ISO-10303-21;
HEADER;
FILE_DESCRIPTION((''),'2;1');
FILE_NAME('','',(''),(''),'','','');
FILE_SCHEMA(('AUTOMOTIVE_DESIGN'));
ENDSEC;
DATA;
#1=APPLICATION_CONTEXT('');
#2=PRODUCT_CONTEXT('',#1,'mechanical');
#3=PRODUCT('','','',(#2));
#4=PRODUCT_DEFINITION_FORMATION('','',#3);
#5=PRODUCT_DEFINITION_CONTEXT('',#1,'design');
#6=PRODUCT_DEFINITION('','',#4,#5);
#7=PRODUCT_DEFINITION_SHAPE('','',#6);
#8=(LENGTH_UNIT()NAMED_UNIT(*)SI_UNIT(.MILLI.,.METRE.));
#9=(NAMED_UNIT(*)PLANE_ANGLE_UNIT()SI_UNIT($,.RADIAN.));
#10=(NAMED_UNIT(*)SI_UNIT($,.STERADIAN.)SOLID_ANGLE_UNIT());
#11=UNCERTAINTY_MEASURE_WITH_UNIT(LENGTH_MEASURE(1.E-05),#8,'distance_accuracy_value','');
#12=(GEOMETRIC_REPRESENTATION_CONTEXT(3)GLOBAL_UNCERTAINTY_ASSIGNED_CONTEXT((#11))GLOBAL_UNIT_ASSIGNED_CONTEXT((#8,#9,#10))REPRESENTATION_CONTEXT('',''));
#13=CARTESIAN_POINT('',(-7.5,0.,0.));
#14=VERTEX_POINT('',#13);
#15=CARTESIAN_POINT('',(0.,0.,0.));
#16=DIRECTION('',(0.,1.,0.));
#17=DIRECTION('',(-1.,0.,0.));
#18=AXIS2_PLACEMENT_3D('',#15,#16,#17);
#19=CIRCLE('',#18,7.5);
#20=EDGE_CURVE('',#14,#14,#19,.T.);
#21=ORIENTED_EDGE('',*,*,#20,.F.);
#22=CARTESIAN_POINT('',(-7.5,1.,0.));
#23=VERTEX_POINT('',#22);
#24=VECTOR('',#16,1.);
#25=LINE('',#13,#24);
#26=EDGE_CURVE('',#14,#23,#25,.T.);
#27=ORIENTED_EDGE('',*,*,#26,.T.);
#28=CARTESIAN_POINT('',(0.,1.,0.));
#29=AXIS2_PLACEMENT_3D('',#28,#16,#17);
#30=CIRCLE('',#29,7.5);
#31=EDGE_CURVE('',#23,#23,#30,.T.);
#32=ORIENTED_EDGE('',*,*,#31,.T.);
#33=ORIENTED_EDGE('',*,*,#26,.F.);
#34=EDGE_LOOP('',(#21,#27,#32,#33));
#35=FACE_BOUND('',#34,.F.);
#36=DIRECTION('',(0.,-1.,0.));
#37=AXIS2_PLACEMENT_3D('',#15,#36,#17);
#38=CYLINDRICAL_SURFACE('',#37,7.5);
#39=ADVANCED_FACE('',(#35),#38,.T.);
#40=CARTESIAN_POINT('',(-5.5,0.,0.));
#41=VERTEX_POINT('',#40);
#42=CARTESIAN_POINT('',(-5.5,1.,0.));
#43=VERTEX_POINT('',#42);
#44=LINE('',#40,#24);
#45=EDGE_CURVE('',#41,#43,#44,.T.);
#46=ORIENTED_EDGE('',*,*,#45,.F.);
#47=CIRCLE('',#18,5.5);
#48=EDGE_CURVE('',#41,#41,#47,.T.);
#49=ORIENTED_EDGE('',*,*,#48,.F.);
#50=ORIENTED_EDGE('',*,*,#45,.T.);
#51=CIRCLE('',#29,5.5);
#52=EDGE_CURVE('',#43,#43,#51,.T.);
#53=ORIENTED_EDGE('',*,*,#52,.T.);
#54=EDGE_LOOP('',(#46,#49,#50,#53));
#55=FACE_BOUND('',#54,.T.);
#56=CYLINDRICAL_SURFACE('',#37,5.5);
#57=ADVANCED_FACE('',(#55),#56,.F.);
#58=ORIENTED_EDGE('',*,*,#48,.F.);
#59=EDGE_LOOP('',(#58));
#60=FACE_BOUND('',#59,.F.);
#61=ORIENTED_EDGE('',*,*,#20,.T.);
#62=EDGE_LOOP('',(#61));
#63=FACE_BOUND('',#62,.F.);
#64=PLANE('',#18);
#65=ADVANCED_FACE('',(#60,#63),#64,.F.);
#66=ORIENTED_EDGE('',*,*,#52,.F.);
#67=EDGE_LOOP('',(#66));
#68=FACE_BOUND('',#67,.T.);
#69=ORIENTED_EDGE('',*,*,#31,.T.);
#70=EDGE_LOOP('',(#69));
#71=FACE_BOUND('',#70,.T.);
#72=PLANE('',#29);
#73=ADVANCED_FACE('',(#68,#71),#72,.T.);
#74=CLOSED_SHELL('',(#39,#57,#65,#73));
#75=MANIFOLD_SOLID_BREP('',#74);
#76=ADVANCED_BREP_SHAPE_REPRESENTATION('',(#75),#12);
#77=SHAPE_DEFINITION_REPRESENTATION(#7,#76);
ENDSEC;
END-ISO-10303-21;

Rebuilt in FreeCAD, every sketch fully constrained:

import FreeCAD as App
import Part
import Sketcher

V = App.Vector
Q = App.Units.Quantity

doc = App.newDocument("Part")
body = doc.addObject("PartDesign::Body", "Body")

sketch1 = body.newObject("Sketcher::SketchObject", "Sketch")
sketch1.AttachmentSupport = (doc.getObject("XZ_Plane"), [""])
sketch1.MapMode = "FlatFace"
sketch1.addGeometry([
    Part.Circle(V(0, 0, 0), V(0, 0, 1), 8),
    Part.Circle(V(0, 0, 0), V(0, 0, 1), 6),
], False)
sketch1.addConstraint([
    Sketcher.Constraint("Coincident", 0, 3, -1, 1),
    Sketcher.Constraint("Coincident", 1, 3, -1, 1),
    Sketcher.Constraint("Diameter", 0, Q("15 mm")),
    Sketcher.Constraint("Diameter", 1, Q("11 mm")),
])
pad1 = body.newObject("PartDesign::Pad", "Pad")
pad1.Profile = sketch1
pad1.Length = 1
pad1.Reversed = True

doc.recompute()
